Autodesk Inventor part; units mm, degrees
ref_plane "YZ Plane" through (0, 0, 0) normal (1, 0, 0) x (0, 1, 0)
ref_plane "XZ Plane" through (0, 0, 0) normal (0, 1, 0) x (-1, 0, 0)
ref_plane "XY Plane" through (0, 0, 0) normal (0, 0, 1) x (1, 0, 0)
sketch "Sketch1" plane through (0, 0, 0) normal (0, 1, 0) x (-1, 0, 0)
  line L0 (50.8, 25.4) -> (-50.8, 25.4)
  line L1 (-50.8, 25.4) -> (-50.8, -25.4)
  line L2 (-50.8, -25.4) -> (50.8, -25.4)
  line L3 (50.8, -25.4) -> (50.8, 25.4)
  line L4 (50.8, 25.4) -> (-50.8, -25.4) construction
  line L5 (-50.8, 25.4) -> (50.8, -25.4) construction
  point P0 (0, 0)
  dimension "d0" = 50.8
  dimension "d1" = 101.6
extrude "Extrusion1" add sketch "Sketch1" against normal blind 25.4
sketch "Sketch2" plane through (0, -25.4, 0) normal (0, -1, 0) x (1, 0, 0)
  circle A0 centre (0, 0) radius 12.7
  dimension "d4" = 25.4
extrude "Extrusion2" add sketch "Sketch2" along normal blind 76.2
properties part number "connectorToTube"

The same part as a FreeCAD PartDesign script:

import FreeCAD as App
import Part
import Sketcher
from FreeCAD import Vector
Q = App.Units.Quantity

doc = App.newDocument("Part")
body = doc.addObject("PartDesign::Body", "Body")

# Sketch on XZ plane
sketch1 = body.newObject("Sketcher::SketchObject", "Sketch")
sketch1.AttachmentSupport = (doc.getObject("XZ_Plane"), [""])
sketch1.MapMode = "FlatFace"
sketch1.addGeometry(Part.LineSegment(Vector(-51, -25, 0), Vector(-51, 25, 0)), False)
sketch1.addGeometry(Part.LineSegment(Vector(-51, 25, 0), Vector(51, 25, 0)), False)
sketch1.addGeometry(Part.LineSegment(Vector(51, 25, 0), Vector(51, -25, 0)), False)
sketch1.addGeometry(Part.LineSegment(Vector(51, -25, 0), Vector(-51, -25, 0)), False)
sketch1.addConstraint(Sketcher.Constraint("Coincident", 0, 2, 1, 1))
sketch1.addConstraint(Sketcher.Constraint("Coincident", 1, 2, 2, 1))
sketch1.addConstraint(Sketcher.Constraint("Coincident", 2, 2, 3, 1))
sketch1.addConstraint(Sketcher.Constraint("Coincident", 3, 2, 0, 1))
sketch1.addConstraint(Sketcher.Constraint("Vertical", 0))
sketch1.addConstraint(Sketcher.Constraint("Horizontal", 1))
sketch1.addConstraint(Sketcher.Constraint("Vertical", 2))
sketch1.addConstraint(Sketcher.Constraint("Horizontal", 3))
sketch1.addConstraint(Sketcher.Constraint("Symmetric", 0, 2, 2, 2, -1, 1))
sketch1.addConstraint(Sketcher.Constraint("DistanceX", 1, 1, 1, 2, Q("4 in")))
sketch1.addConstraint(Sketcher.Constraint("DistanceY", 0, 1, 0, 2, Q("2 in")))
pad1 = body.newObject("PartDesign::Pad", "Pad")
pad1.Profile = sketch1
pad1.Length = Q("1 in")

# Sketch on XZ plane
sketch2 = body.newObject("Sketcher::SketchObject", "Sketch001")
sketch2.AttachmentSupport = (doc.getObject("XZ_Plane"), [""])
sketch2.MapMode = "FlatFace"
sketch2.AttachmentOffset = App.Placement(Vector(0, 0, 1 * 25.4), App.Rotation())
sketch2.addGeometry(Part.Circle(Vector(0, 0, 0), Vector(0, 0, 1), 13), False)
sketch2.addConstraint(Sketcher.Constraint("Coincident", 0, 3, -1, 1))
sketch2.addConstraint(Sketcher.Constraint("Diameter", 0, Q("1 in")))
pad2 = body.newObject("PartDesign::Pad", "Pad001")
pad2.Profile = sketch2
pad2.Length = Q("3 in")

doc.recompute()
